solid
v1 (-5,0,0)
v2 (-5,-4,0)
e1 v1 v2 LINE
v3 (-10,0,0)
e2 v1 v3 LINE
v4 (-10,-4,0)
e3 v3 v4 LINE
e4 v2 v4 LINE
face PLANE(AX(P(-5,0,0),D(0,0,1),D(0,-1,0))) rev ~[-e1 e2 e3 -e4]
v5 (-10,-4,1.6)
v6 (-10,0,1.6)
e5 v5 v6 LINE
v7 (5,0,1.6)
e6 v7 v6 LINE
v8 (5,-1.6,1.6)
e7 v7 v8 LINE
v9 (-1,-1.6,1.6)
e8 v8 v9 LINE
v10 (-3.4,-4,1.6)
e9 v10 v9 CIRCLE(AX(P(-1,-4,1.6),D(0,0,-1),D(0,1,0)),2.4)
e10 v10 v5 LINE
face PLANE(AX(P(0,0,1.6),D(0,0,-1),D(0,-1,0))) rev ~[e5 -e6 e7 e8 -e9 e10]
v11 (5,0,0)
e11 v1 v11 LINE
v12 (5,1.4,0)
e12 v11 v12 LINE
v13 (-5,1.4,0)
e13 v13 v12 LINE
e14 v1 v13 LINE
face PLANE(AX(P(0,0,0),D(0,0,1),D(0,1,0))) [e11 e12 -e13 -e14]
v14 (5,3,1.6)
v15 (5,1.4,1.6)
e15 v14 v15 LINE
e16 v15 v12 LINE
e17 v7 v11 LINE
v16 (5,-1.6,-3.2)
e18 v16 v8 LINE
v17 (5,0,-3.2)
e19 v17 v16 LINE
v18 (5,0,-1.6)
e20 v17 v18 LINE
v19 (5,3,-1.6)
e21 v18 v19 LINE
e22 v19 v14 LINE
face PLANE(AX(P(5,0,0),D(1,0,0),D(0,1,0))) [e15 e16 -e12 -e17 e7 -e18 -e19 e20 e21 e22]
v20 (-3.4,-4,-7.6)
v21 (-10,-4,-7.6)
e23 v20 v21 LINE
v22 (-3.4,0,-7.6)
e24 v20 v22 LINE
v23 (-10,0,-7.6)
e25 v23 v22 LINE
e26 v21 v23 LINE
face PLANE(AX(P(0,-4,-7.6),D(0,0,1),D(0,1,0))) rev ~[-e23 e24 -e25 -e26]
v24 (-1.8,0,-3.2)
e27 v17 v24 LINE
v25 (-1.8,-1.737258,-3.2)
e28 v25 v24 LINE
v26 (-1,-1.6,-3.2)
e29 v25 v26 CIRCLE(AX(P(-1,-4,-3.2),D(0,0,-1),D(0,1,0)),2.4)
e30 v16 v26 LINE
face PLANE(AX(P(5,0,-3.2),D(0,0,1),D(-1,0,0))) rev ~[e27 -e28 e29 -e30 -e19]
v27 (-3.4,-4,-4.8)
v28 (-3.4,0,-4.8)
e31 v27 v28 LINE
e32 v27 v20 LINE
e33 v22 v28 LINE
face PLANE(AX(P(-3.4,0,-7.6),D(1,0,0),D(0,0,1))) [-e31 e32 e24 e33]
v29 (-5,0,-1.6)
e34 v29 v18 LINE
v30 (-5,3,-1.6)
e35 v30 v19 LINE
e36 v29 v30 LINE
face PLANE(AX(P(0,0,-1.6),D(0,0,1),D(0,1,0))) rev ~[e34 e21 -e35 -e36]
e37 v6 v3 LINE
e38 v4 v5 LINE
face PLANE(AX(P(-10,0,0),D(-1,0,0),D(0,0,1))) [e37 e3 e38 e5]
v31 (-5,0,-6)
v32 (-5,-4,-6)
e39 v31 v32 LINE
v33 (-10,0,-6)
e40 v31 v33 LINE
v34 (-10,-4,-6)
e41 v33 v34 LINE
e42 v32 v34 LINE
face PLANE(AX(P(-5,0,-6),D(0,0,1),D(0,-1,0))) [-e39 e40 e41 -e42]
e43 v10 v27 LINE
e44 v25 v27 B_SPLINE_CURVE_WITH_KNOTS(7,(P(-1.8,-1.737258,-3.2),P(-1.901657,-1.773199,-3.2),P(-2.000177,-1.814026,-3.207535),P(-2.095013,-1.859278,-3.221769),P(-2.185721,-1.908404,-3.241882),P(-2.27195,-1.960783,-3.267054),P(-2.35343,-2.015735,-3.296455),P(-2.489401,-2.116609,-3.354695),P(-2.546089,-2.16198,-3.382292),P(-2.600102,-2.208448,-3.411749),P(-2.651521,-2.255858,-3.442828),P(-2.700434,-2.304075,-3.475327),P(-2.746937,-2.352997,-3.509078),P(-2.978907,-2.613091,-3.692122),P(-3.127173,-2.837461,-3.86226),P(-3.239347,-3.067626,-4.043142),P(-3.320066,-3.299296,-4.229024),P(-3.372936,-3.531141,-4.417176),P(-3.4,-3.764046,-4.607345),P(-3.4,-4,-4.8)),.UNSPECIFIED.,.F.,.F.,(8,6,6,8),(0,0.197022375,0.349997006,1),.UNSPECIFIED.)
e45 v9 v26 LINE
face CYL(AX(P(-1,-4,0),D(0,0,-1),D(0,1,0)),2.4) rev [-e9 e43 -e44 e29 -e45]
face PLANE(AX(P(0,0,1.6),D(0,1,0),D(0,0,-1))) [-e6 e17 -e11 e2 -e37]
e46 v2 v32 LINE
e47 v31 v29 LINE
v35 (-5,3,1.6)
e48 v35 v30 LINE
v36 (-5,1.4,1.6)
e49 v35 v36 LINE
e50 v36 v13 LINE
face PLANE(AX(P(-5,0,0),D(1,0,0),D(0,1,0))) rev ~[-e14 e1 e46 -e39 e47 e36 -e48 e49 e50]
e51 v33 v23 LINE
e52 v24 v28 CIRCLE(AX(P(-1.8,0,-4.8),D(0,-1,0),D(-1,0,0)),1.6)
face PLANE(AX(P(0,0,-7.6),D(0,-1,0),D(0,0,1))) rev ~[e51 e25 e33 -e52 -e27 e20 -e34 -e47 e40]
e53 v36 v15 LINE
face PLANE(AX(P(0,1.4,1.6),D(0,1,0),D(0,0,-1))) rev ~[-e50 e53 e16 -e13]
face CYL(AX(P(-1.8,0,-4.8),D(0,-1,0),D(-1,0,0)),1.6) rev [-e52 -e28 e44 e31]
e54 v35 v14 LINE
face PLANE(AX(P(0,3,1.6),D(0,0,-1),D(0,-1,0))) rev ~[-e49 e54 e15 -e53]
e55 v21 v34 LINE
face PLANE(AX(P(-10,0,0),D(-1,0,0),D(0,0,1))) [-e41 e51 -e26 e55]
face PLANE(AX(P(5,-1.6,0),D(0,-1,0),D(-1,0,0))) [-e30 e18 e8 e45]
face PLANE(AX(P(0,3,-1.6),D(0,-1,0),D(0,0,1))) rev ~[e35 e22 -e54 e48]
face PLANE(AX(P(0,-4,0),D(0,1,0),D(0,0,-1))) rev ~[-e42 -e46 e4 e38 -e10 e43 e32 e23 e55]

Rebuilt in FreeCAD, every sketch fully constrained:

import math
import FreeCAD as App
import Part
import Sketcher
Q = App.Units.Quantity


def add_polygon(sketch, points):
    """Adds a closed chain of lines whose ends are joined by coincident constraints."""
    first, n = sketch.GeometryCount, len(points)
    for a, b in zip(points, points[1:] + points[:1]):
        sketch.addGeometry(Part.LineSegment(App.Vector(*a, 0), App.Vector(*b, 0)), False)
    for i in range(n):
        sketch.addConstraint(Sketcher.Constraint("Coincident", first + i, 2, first + (i + 1) % n, 1))

doc = App.newDocument("Part")
params = doc.addObject("Spreadsheet::Sheet", "Params")
for row, (alias, value) in enumerate([
    ("sketch1_width", "4 mm"),
    ("sketch1_width2", "3 mm"),
    ("sketch1_height", "6 mm"),
    ("sketch1_width3", "1.6 mm"),
    ("pad1_length", "10 mm"),
    ("sketch2_radius", "2.4 mm"),
    ("sketch2_width", "6 mm"),
    ("sketch3_height", "1.6 mm"),
    ("sketch3_width", "4 mm"),
    ("pad2_length", "5 mm"),
    ("sketch4_radius", "1.6 mm"),
    ("sketch4_width", "8.4 mm"),
    ("sketch4_height", "2.8 mm"),
], start=1):
    params.set(f"A{row}", alias)
    params.set(f"B{row}", "=" + value)
    params.setAlias(f"B{row}", alias)

body = doc.addObject("PartDesign::Body", "Body")

# Sketch on YZ plane
sketch1 = body.newObject("Sketcher::SketchObject", "Sketch")
sketch1.AttachmentSupport = (doc.getObject("YZ_Plane"), [""])
sketch1.MapMode = "FlatFace"
add_polygon(sketch1, [(-4, -7.6), (0, -7.6), (0, -1.6), (3, -1.6), (3, 1.6), (1.4, 1.6), (1.4, 0), (0, 0), (0, 1.6), (-4, 1.6)])  # lines 0-9
sketch1.addConstraint(Sketcher.Constraint("Horizontal", 0))
sketch1.addConstraint(Sketcher.Constraint("Vertical", 1))
sketch1.addConstraint(Sketcher.Constraint("Horizontal", 2))
sketch1.addConstraint(Sketcher.Constraint("Vertical", 3))
sketch1.addConstraint(Sketcher.Constraint("Horizontal", 4))
sketch1.addConstraint(Sketcher.Constraint("Vertical", 5))
sketch1.addConstraint(Sketcher.Constraint("Horizontal", 6))
sketch1.addConstraint(Sketcher.Constraint("Vertical", 7))
sketch1.addConstraint(Sketcher.Constraint("Horizontal", 8))
sketch1.addConstraint(Sketcher.Constraint("Vertical", 9))
sketch1.addConstraint(Sketcher.Constraint("Coincident", 6, 2, -1, 1))
sketch1.addConstraint(Sketcher.Constraint("Symmetric", 1, 2, 7, 2, -1, 1))
sketch1.addConstraint(Sketcher.Constraint("Horizontal", 4, 2, 7, 2))
sketch1.addConstraint(Sketcher.Constraint("Equal", 4, 5))
sketch1.addConstraint(Sketcher.Constraint("DistanceX", 0, 1, 0, 2, Q("4 mm")))
sketch1.addConstraint(Sketcher.Constraint("DistanceX", 2, 1, 2, 2, Q("3 mm")))
sketch1.addConstraint(Sketcher.Constraint("DistanceY", 1, 1, 1, 2, Q("6 mm")))
sketch1.addConstraint(Sketcher.Constraint("DistanceX", 4, 2, 4, 1, Q("1.6 mm")))
sketch1.setExpression("Constraints[24]", "Params.sketch1_width")
sketch1.setExpression("Constraints[25]", "Params.sketch1_width2")
sketch1.setExpression("Constraints[26]", "Params.sketch1_height")
sketch1.setExpression("Constraints[27]", "Params.sketch1_width3")
pad1 = body.newObject("PartDesign::Pad", "Pad")
pad1.Profile = sketch1
pad1.setExpression("Length", "Params.pad1_length")
pad1.Midplane = True

# Sketch on XY plane
sketch2 = body.newObject("Sketcher::SketchObject", "Sketch001")
sketch2.AttachmentSupport = (doc.getObject("XY_Plane"), [""])
sketch2.MapMode = "FlatFace"
sketch2.addGeometry(Part.LineSegment(App.Vector(-3.4, -4, 0), App.Vector(5, -4, 0)), False)
sketch2.addGeometry(Part.LineSegment(App.Vector(5, -4, 0), App.Vector(5, -1.6, 0)), False)
sketch2.addGeometry(Part.LineSegment(App.Vector(5, -1.6, 0), App.Vector(-1, -1.6, 0)), False)
sketch2.addGeometry(Part.ArcOfCircle(Part.Circle(App.Vector(-1, -4, 0), App.Vector(0, 0, 1), 2.4), math.radians(90), math.radians(180)), False)
sketch2.addConstraint(Sketcher.Constraint("Coincident", 0, 2, 1, 1))
sketch2.addConstraint(Sketcher.Constraint("Coincident", 1, 2, 2, 1))
sketch2.addConstraint(Sketcher.Constraint("Tangent", 2, 2, 3, 1))
sketch2.addConstraint(Sketcher.Constraint("Coincident", 3, 2, 0, 1))
sketch2.addConstraint(Sketcher.Constraint("Horizontal", 0))
sketch2.addConstraint(Sketcher.Constraint("Vertical", 1))
sketch2.addConstraint(Sketcher.Constraint("Horizontal", 2))
sketch2.addConstraint(Sketcher.Constraint("Horizontal", 3, 3, 0, 2))
sketch2.addConstraint(Sketcher.Constraint("Radius", 3, Q("2.4 mm")))
sketch2.addConstraint(Sketcher.Constraint("DistanceY", 1, 2, -1, 1, Q("1.6 mm")))
sketch2.addConstraint(Sketcher.Constraint("DistanceX", 2, 2, 2, 1, Q("6 mm")))
sketch2.addConstraint(Sketcher.Constraint("DistanceX", 3, 3, -1, 1, Q("1 mm")))
sketch2.setExpression("Constraints[8]", "Params.sketch2_radius")
sketch2.setExpression("Constraints[10]", "Params.sketch2_width")
pocket1 = body.newObject("PartDesign::Pocket", "Pocket")
pocket1.Profile = sketch2
pocket1.Type = "ThroughAll"
pocket1.Midplane = True

# Sketch on YZ plane
sketch3 = body.newObject("Sketcher::SketchObject", "Sketch002")
sketch3.AttachmentSupport = (doc.getObject("YZ_Plane"), [""])
sketch3.MapMode = "FlatFace"
sketch3.AttachmentOffset = App.Placement(App.Vector(0, 0, -5), App.Rotation())
add_polygon(sketch3, [(-4, 1.6), (0, 1.6), (0, 0), (-4, 0)])  # lines 0-3
add_polygon(sketch3, [(-4, -7.6), (-4, -6), (0, -6), (0, -7.6)])  # lines 4-7
sketch3.addConstraint(Sketcher.Constraint("Horizontal", 0))
sketch3.addConstraint(Sketcher.Constraint("Vertical", 1))
sketch3.addConstraint(Sketcher.Constraint("Horizontal", 2))
sketch3.addConstraint(Sketcher.Constraint("Vertical", 3))
sketch3.addConstraint(Sketcher.Constraint("Vertical", 4))
sketch3.addConstraint(Sketcher.Constraint("Horizontal", 5))
sketch3.addConstraint(Sketcher.Constraint("Vertical", 6))
sketch3.addConstraint(Sketcher.Constraint("Horizontal", 7))
sketch3.addConstraint(Sketcher.Constraint("Coincident", 1, 2, -1, 1))
sketch3.addConstraint(Sketcher.Constraint("PointOnObject", 5, 2, -2))
sketch3.addConstraint(Sketcher.Constraint("Vertical", 3, 2, 4, 2))
sketch3.addConstraint(Sketcher.Constraint("Equal", 3, 4))
sketch3.addConstraint(Sketcher.Constraint("DistanceY", 1, 2, 1, 1, Q("1.6 mm")))
sketch3.addConstraint(Sketcher.Constraint("DistanceX", 0, 1, 0, 2, Q("4 mm")))
sketch3.addConstraint(Sketcher.Constraint("DistanceY", 4, 2, -1, 1, Q("6 mm")))
sketch3.setExpression("Constraints[20]", "Params.sketch3_height")
sketch3.setExpression("Constraints[21]", "Params.sketch3_width")
pad2 = body.newObject("PartDesign::Pad", "Pad001")
pad2.Profile = sketch3
pad2.setExpression("Length", "Params.pad2_length")
pad2.Reversed = True

# Sketch on XZ plane
sketch4 = body.newObject("Sketcher::SketchObject", "Sketch003")
sketch4.AttachmentSupport = (doc.getObject("XZ_Plane"), [""])
sketch4.MapMode = "FlatFace"
sketch4.addGeometry(Part.LineSegment(App.Vector(5, -7.6, 0), App.Vector(-3.4, -7.6, 0)), False)
sketch4.addGeometry(Part.LineSegment(App.Vector(-3.4, -7.6, 0), App.Vector(-3.4, -4.8, 0)), False)
sketch4.addGeometry(Part.ArcOfCircle(Part.Circle(App.Vector(-1.8, -4.8, 0), App.Vector(0, 0, 1), 1.6), math.radians(90), math.radians(180)), False)
sketch4.addGeometry(Part.LineSegment(App.Vector(-1.8, -3.2, 0), App.Vector(5, -3.2, 0)), False)
sketch4.addGeometry(Part.LineSegment(App.Vector(5, -3.2, 0), App.Vector(5, -7.6, 0)), False)
sketch4.addConstraint(Sketcher.Constraint("Coincident", 0, 2, 1, 1))
sketch4.addConstraint(Sketcher.Constraint("Tangent", 1, 2, 2, 2))
sketch4.addConstraint(Sketcher.Constraint("Tangent", 2, 1, 3, 1))
sketch4.addConstraint(Sketcher.Constraint("Coincident", 3, 2, 4, 1))
sketch4.addConstraint(Sketcher.Constraint("Coincident", 4, 2, 0, 1))
sketch4.addConstraint(Sketcher.Constraint("Horizontal", 0))
sketch4.addConstraint(Sketcher.Constraint("Vertical", 1))
sketch4.addConstraint(Sketcher.Constraint("Horizontal", 3))
sketch4.addConstraint(Sketcher.Constraint("Vertical", 4))
sketch4.addConstraint(Sketcher.Constraint("Radius", 2, Q("1.6 mm")))
sketch4.addConstraint(Sketcher.Constraint("DistanceX", 0, 2, 0, 1, Q("8.4 mm")))
sketch4.addConstraint(Sketcher.Constraint("DistanceY", 1, 1, 1, 2, Q("2.8 mm")))
sketch4.addConstraint(Sketcher.Constraint("DistanceX", -1, 1, 3, 2, Q("5 mm")))
sketch4.addConstraint(Sketcher.Constraint("DistanceY", 2, 3, -1, 1, Q("4.8 mm")))
sketch4.setExpression("Constraints[9]", "Params.sketch4_radius")
sketch4.setExpression("Constraints[10]", "Params.sketch4_width")
sketch4.setExpression("Constraints[11]", "Params.sketch4_height")
pocket2 = body.newObject("PartDesign::Pocket", "Pocket001")
pocket2.Profile = sketch4
pocket2.Type = "ThroughAll"
pocket2.Midplane = True

doc.recompute()
